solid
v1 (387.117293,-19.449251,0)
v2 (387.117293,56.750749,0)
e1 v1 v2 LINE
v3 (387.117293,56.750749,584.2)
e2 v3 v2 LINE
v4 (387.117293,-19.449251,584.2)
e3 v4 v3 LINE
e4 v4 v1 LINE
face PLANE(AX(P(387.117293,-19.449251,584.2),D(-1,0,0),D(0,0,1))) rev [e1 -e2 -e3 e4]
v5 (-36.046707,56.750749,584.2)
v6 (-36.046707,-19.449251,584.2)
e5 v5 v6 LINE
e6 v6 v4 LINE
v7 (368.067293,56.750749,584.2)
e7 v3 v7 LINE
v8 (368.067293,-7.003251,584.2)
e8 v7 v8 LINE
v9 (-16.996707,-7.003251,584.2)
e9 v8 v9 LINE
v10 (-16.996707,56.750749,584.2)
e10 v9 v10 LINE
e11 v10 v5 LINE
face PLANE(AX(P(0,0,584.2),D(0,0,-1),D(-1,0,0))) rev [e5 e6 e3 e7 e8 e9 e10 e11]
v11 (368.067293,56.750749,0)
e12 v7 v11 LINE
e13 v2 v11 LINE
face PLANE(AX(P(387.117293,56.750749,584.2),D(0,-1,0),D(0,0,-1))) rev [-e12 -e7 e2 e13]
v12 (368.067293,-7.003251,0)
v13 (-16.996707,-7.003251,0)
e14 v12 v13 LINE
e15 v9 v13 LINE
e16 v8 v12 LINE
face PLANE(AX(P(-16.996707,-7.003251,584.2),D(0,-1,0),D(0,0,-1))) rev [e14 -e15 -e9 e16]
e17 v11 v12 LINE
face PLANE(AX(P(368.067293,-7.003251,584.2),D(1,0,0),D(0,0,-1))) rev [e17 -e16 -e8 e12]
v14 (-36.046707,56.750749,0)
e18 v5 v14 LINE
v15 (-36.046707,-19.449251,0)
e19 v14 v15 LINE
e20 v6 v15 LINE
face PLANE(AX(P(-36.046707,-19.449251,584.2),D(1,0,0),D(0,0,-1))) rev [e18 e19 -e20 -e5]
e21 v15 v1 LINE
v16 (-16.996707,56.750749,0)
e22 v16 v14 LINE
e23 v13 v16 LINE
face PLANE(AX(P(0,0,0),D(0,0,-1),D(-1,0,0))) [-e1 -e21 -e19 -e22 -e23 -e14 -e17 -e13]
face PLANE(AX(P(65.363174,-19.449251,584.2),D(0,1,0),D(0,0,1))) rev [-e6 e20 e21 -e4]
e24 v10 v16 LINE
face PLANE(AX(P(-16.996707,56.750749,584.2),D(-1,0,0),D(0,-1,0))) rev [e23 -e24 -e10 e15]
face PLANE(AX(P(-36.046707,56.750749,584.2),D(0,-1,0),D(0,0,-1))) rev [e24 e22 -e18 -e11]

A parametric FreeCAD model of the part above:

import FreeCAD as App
import Part
import Sketcher
Q = App.Units.Quantity


def add_polygon(sketch, points):
    """Adds a closed chain of lines whose ends are joined by coincident constraints."""
    first, n = sketch.GeometryCount, len(points)
    for a, b in zip(points, points[1:] + points[:1]):
        sketch.addGeometry(Part.LineSegment(App.Vector(*a, 0), App.Vector(*b, 0)), False)
    for i in range(n):
        sketch.addConstraint(Sketcher.Constraint("Coincident", first + i, 2, first + (i + 1) % n, 1))

doc = App.newDocument("Part")
body = doc.addObject("PartDesign::Body", "Body")

# Sketch on XY plane
sketch1 = body.newObject("Sketcher::SketchObject", "Sketch")
sketch1.AttachmentSupport = (doc.getObject("XY_Plane"), [""])
sketch1.MapMode = "FlatFace"
add_polygon(sketch1, [(-17, 57), (-36, 57), (-36, -19), (387, -19), (387, 57), (368, 57), (368, -7), (-17, -7)])  # lines 0-7
sketch1.addConstraint([
    Sketcher.Constraint("Horizontal", 0),
    Sketcher.Constraint("Vertical", 1),
    Sketcher.Constraint("Horizontal", 2),
    Sketcher.Constraint("Vertical", 3),
    Sketcher.Constraint("Horizontal", 4),
    Sketcher.Constraint("Vertical", 5),
    Sketcher.Constraint("Horizontal", 6),
    Sketcher.Constraint("Vertical", 7),
    Sketcher.Constraint("Horizontal", 0, 2, 3, 2),
    Sketcher.Constraint("Equal", 0, 4),
    Sketcher.Constraint("DistanceY", 1, 2, 1, 1, Q("3 in")),
    Sketcher.Constraint("DistanceX", 0, 2, 0, 1, Q("0.75 in")),
    Sketcher.Constraint("DistanceX", 2, 1, 2, 2, Q("16.66 in")),
    Sketcher.Constraint("DistanceY", 5, 2, 5, 1, Q("2.51 in")),
    Sketcher.Constraint("DistanceY", -1, 1, 0, 2, 56.750749),
    Sketcher.Constraint("DistanceX", 0, 2, -1, 1, 36.046707),
])
pad1 = body.newObject("PartDesign::Pad", "Pad")
pad1.Profile = sketch1
pad1.Length = Q("23 in")

doc.recompute()
